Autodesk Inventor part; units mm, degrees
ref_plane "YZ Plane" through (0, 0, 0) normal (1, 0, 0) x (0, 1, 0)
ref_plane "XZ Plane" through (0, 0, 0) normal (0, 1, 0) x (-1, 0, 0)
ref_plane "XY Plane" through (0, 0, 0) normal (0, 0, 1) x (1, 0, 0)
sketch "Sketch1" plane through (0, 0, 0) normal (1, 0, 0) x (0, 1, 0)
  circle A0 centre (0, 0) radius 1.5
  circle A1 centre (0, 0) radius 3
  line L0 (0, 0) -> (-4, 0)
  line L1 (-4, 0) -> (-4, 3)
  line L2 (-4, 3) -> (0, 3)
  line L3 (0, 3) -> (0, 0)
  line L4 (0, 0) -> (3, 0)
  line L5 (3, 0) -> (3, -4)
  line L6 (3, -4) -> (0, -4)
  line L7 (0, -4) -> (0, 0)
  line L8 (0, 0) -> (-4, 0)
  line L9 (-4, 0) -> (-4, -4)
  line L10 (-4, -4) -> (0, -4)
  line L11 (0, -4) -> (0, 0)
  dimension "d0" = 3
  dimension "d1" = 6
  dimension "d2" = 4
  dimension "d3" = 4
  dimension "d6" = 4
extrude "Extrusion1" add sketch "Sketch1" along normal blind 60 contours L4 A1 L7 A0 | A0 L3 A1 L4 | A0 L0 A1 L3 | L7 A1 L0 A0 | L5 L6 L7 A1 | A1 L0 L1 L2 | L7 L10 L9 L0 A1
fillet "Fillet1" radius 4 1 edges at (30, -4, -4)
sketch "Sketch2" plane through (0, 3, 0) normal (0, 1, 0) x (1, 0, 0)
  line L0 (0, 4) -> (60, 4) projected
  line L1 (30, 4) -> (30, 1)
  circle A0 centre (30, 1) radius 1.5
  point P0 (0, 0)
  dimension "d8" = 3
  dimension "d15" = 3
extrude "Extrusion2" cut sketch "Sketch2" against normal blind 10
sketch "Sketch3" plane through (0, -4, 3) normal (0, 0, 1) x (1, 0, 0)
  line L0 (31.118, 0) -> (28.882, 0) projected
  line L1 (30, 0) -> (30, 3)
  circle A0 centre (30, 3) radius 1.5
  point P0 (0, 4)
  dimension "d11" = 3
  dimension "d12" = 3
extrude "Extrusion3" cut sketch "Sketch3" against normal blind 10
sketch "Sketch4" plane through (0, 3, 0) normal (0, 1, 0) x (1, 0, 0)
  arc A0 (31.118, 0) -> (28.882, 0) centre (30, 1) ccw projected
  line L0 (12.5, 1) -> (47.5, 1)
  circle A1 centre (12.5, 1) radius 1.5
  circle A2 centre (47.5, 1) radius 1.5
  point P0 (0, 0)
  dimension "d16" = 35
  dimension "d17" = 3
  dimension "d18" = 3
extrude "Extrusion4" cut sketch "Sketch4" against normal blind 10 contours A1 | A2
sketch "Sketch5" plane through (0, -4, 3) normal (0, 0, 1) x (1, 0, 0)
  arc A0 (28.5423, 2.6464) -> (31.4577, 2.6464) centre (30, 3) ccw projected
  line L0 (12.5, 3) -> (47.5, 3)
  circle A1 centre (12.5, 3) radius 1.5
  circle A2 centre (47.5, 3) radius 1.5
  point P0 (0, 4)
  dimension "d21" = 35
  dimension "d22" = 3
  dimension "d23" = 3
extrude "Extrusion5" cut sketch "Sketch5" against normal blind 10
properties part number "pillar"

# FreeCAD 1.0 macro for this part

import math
import FreeCAD as App
import Part
import Sketcher


def edges_at(feature, points):
    """Names of the edges that pass closest to the given points."""
    edges = feature.Shape.Edges
    near = lambda p: min(range(len(edges)), key=lambda i: edges[i].distToShape(Part.Vertex(*p))[0])
    return sorted({f"Edge{near(p) + 1}" for p in points})

doc = App.newDocument("Part")
body = doc.addObject("PartDesign::Body", "Body")

sketch1 = body.newObject("Sketcher::SketchObject", "Sketch")
sketch1.AttachmentSupport = (doc.getObject("YZ_Plane"), [""])
sketch1.MapMode = "FlatFace"
sketch1.addGeometry([
    Part.ArcOfCircle(Part.Circle(App.Vector(0, 0, 0), App.Vector(0, 0, 1), 3), math.radians(0), math.radians(90)),
    Part.LineSegment(App.Vector(0, 3, 0), App.Vector(-4, 3, 0)),
    Part.LineSegment(App.Vector(-4, 3, 0), App.Vector(-4, -4, 0)),
    Part.LineSegment(App.Vector(-4, -4, 0), App.Vector(3, -4, 0)),
    Part.LineSegment(App.Vector(3, -4, 0), App.Vector(3, 0, 0)),
    Part.Circle(App.Vector(0, 0, 0), App.Vector(0, 0, 1), 1.5),
], False)
sketch1.addConstraint([
    Sketcher.Constraint("Tangent", 0, 2, 1, 1),
    Sketcher.Constraint("Coincident", 1, 2, 2, 1),
    Sketcher.Constraint("Coincident", 2, 2, 3, 1),
    Sketcher.Constraint("Coincident", 3, 2, 4, 1),
    Sketcher.Constraint("Tangent", 4, 2, 0, 1),
    Sketcher.Constraint("Horizontal", 1),
    Sketcher.Constraint("Vertical", 2),
    Sketcher.Constraint("Horizontal", 3),
    Sketcher.Constraint("Vertical", 4),
    Sketcher.Constraint("Coincident", 0, 3, -1, 1),
    Sketcher.Constraint("Coincident", 5, 3, -1, 1),
    Sketcher.Constraint("Equal", 3, 2),
    Sketcher.Constraint("Diameter", 5, 3.0),
    Sketcher.Constraint("Radius", 0, 3.0),
    Sketcher.Constraint("DistanceX", 1, 2, 1, 1, 4.0),
])
pad1 = body.newObject("PartDesign::Pad", "Pad")
pad1.Profile = sketch1
pad1.Length = 60
doc.recompute()

fillet = body.newObject("PartDesign::Fillet", "Fillet")
fillet.Base = (pad1, edges_at(pad1, [(30, -4, -4)]))
fillet.Radius = 4

sketch2 = body.newObject("Sketcher::SketchObject", "Sketch001")
sketch2.AttachmentSupport = (doc.getObject("XZ_Plane"), [""])
sketch2.MapMode = "FlatFace"
sketch2.AttachmentOffset = App.Placement(App.Vector(0, 0, -3), App.Rotation())
sketch2.addGeometry(Part.Circle(App.Vector(30, -1, 0), App.Vector(0, 0, 1), 1.5), False)
sketch2.addConstraint([
    Sketcher.Constraint("Diameter", 0, 3.0),
    Sketcher.Constraint("DistanceX", -1, 1, 0, 3, 30.0),
    Sketcher.Constraint("DistanceY", 0, 3, -1, 1, 1.0),
])
pocket1 = body.newObject("PartDesign::Pocket", "Pocket")
pocket1.Profile = sketch2
pocket1.Length = 10
pocket1.Reversed = True

sketch3 = body.newObject("Sketcher::SketchObject", "Sketch002")
sketch3.AttachmentSupport = (doc.getObject("XY_Plane"), [""])
sketch3.MapMode = "FlatFace"
sketch3.AttachmentOffset = App.Placement(App.Vector(0, 0, 3), App.Rotation())
sketch3.addGeometry(Part.Circle(App.Vector(30, -1, 0), App.Vector(0, 0, 1), 1.5), False)
sketch3.addConstraint([
    Sketcher.Constraint("Diameter", 0, 3.0),
    Sketcher.Constraint("DistanceX", -1, 1, 0, 3, 30.0),
    Sketcher.Constraint("DistanceY", 0, 3, -1, 1, 1.0),
])
pocket2 = body.newObject("PartDesign::Pocket", "Pocket001")
pocket2.Profile = sketch3
pocket2.Length = 10

sketch4 = body.newObject("Sketcher::SketchObject", "Sketch003")
sketch4.AttachmentSupport = (doc.getObject("XZ_Plane"), [""])
sketch4.MapMode = "FlatFace"
sketch4.AttachmentOffset = App.Placement(App.Vector(0, 0, -3), App.Rotation())
sketch4.addGeometry([
    Part.Circle(App.Vector(12.5, -1, 0), App.Vector(0, 0, 1), 1.5),
    Part.Circle(App.Vector(47.5, -1, 0), App.Vector(0, 0, 1), 1.5),
], False)
sketch4.addConstraint([
    Sketcher.Constraint("Equal", 0, 1),
    Sketcher.Constraint("Horizontal", 0, 3, 1, 3),
    Sketcher.Constraint("Diameter", 0, 3.0),
    Sketcher.Constraint("DistanceX", 0, 3, 1, 3, 35.0),
    Sketcher.Constraint("DistanceY", 0, 3, -1, 1, 1.0),
    Sketcher.Constraint("DistanceX", -1, 1, 0, 3, 12.5),
])
pocket3 = body.newObject("PartDesign::Pocket", "Pocket002")
pocket3.Profile = sketch4
pocket3.Length = 10
pocket3.Reversed = True

sketch5 = body.newObject("Sketcher::SketchObject", "Sketch004")
sketch5.AttachmentSupport = (doc.getObject("XY_Plane"), [""])
sketch5.MapMode = "FlatFace"
sketch5.AttachmentOffset = App.Placement(App.Vector(0, 0, 3), App.Rotation())
sketch5.addGeometry([
    Part.Circle(App.Vector(47.5, -1, 0), App.Vector(0, 0, 1), 1.5),
    Part.Circle(App.Vector(12.5, -1, 0), App.Vector(0, 0, 1), 1.5),
], False)
sketch5.addConstraint([
    Sketcher.Constraint("Equal", 0, 1),
    Sketcher.Constraint("Horizontal", 0, 3, 1, 3),
    Sketcher.Constraint("Diameter", 0, 3.0),
    Sketcher.Constraint("DistanceX", 1, 3, 0, 3, 35.0),
    Sketcher.Constraint("DistanceY", 0, 3, -1, 1, 1.0),
    Sketcher.Constraint("DistanceX", -1, 1, 0, 3, 47.5),
])
pocket4 = body.newObject("PartDesign::Pocket", "Pocket003")
pocket4.Profile = sketch5
pocket4.Length = 10

doc.recompute()
